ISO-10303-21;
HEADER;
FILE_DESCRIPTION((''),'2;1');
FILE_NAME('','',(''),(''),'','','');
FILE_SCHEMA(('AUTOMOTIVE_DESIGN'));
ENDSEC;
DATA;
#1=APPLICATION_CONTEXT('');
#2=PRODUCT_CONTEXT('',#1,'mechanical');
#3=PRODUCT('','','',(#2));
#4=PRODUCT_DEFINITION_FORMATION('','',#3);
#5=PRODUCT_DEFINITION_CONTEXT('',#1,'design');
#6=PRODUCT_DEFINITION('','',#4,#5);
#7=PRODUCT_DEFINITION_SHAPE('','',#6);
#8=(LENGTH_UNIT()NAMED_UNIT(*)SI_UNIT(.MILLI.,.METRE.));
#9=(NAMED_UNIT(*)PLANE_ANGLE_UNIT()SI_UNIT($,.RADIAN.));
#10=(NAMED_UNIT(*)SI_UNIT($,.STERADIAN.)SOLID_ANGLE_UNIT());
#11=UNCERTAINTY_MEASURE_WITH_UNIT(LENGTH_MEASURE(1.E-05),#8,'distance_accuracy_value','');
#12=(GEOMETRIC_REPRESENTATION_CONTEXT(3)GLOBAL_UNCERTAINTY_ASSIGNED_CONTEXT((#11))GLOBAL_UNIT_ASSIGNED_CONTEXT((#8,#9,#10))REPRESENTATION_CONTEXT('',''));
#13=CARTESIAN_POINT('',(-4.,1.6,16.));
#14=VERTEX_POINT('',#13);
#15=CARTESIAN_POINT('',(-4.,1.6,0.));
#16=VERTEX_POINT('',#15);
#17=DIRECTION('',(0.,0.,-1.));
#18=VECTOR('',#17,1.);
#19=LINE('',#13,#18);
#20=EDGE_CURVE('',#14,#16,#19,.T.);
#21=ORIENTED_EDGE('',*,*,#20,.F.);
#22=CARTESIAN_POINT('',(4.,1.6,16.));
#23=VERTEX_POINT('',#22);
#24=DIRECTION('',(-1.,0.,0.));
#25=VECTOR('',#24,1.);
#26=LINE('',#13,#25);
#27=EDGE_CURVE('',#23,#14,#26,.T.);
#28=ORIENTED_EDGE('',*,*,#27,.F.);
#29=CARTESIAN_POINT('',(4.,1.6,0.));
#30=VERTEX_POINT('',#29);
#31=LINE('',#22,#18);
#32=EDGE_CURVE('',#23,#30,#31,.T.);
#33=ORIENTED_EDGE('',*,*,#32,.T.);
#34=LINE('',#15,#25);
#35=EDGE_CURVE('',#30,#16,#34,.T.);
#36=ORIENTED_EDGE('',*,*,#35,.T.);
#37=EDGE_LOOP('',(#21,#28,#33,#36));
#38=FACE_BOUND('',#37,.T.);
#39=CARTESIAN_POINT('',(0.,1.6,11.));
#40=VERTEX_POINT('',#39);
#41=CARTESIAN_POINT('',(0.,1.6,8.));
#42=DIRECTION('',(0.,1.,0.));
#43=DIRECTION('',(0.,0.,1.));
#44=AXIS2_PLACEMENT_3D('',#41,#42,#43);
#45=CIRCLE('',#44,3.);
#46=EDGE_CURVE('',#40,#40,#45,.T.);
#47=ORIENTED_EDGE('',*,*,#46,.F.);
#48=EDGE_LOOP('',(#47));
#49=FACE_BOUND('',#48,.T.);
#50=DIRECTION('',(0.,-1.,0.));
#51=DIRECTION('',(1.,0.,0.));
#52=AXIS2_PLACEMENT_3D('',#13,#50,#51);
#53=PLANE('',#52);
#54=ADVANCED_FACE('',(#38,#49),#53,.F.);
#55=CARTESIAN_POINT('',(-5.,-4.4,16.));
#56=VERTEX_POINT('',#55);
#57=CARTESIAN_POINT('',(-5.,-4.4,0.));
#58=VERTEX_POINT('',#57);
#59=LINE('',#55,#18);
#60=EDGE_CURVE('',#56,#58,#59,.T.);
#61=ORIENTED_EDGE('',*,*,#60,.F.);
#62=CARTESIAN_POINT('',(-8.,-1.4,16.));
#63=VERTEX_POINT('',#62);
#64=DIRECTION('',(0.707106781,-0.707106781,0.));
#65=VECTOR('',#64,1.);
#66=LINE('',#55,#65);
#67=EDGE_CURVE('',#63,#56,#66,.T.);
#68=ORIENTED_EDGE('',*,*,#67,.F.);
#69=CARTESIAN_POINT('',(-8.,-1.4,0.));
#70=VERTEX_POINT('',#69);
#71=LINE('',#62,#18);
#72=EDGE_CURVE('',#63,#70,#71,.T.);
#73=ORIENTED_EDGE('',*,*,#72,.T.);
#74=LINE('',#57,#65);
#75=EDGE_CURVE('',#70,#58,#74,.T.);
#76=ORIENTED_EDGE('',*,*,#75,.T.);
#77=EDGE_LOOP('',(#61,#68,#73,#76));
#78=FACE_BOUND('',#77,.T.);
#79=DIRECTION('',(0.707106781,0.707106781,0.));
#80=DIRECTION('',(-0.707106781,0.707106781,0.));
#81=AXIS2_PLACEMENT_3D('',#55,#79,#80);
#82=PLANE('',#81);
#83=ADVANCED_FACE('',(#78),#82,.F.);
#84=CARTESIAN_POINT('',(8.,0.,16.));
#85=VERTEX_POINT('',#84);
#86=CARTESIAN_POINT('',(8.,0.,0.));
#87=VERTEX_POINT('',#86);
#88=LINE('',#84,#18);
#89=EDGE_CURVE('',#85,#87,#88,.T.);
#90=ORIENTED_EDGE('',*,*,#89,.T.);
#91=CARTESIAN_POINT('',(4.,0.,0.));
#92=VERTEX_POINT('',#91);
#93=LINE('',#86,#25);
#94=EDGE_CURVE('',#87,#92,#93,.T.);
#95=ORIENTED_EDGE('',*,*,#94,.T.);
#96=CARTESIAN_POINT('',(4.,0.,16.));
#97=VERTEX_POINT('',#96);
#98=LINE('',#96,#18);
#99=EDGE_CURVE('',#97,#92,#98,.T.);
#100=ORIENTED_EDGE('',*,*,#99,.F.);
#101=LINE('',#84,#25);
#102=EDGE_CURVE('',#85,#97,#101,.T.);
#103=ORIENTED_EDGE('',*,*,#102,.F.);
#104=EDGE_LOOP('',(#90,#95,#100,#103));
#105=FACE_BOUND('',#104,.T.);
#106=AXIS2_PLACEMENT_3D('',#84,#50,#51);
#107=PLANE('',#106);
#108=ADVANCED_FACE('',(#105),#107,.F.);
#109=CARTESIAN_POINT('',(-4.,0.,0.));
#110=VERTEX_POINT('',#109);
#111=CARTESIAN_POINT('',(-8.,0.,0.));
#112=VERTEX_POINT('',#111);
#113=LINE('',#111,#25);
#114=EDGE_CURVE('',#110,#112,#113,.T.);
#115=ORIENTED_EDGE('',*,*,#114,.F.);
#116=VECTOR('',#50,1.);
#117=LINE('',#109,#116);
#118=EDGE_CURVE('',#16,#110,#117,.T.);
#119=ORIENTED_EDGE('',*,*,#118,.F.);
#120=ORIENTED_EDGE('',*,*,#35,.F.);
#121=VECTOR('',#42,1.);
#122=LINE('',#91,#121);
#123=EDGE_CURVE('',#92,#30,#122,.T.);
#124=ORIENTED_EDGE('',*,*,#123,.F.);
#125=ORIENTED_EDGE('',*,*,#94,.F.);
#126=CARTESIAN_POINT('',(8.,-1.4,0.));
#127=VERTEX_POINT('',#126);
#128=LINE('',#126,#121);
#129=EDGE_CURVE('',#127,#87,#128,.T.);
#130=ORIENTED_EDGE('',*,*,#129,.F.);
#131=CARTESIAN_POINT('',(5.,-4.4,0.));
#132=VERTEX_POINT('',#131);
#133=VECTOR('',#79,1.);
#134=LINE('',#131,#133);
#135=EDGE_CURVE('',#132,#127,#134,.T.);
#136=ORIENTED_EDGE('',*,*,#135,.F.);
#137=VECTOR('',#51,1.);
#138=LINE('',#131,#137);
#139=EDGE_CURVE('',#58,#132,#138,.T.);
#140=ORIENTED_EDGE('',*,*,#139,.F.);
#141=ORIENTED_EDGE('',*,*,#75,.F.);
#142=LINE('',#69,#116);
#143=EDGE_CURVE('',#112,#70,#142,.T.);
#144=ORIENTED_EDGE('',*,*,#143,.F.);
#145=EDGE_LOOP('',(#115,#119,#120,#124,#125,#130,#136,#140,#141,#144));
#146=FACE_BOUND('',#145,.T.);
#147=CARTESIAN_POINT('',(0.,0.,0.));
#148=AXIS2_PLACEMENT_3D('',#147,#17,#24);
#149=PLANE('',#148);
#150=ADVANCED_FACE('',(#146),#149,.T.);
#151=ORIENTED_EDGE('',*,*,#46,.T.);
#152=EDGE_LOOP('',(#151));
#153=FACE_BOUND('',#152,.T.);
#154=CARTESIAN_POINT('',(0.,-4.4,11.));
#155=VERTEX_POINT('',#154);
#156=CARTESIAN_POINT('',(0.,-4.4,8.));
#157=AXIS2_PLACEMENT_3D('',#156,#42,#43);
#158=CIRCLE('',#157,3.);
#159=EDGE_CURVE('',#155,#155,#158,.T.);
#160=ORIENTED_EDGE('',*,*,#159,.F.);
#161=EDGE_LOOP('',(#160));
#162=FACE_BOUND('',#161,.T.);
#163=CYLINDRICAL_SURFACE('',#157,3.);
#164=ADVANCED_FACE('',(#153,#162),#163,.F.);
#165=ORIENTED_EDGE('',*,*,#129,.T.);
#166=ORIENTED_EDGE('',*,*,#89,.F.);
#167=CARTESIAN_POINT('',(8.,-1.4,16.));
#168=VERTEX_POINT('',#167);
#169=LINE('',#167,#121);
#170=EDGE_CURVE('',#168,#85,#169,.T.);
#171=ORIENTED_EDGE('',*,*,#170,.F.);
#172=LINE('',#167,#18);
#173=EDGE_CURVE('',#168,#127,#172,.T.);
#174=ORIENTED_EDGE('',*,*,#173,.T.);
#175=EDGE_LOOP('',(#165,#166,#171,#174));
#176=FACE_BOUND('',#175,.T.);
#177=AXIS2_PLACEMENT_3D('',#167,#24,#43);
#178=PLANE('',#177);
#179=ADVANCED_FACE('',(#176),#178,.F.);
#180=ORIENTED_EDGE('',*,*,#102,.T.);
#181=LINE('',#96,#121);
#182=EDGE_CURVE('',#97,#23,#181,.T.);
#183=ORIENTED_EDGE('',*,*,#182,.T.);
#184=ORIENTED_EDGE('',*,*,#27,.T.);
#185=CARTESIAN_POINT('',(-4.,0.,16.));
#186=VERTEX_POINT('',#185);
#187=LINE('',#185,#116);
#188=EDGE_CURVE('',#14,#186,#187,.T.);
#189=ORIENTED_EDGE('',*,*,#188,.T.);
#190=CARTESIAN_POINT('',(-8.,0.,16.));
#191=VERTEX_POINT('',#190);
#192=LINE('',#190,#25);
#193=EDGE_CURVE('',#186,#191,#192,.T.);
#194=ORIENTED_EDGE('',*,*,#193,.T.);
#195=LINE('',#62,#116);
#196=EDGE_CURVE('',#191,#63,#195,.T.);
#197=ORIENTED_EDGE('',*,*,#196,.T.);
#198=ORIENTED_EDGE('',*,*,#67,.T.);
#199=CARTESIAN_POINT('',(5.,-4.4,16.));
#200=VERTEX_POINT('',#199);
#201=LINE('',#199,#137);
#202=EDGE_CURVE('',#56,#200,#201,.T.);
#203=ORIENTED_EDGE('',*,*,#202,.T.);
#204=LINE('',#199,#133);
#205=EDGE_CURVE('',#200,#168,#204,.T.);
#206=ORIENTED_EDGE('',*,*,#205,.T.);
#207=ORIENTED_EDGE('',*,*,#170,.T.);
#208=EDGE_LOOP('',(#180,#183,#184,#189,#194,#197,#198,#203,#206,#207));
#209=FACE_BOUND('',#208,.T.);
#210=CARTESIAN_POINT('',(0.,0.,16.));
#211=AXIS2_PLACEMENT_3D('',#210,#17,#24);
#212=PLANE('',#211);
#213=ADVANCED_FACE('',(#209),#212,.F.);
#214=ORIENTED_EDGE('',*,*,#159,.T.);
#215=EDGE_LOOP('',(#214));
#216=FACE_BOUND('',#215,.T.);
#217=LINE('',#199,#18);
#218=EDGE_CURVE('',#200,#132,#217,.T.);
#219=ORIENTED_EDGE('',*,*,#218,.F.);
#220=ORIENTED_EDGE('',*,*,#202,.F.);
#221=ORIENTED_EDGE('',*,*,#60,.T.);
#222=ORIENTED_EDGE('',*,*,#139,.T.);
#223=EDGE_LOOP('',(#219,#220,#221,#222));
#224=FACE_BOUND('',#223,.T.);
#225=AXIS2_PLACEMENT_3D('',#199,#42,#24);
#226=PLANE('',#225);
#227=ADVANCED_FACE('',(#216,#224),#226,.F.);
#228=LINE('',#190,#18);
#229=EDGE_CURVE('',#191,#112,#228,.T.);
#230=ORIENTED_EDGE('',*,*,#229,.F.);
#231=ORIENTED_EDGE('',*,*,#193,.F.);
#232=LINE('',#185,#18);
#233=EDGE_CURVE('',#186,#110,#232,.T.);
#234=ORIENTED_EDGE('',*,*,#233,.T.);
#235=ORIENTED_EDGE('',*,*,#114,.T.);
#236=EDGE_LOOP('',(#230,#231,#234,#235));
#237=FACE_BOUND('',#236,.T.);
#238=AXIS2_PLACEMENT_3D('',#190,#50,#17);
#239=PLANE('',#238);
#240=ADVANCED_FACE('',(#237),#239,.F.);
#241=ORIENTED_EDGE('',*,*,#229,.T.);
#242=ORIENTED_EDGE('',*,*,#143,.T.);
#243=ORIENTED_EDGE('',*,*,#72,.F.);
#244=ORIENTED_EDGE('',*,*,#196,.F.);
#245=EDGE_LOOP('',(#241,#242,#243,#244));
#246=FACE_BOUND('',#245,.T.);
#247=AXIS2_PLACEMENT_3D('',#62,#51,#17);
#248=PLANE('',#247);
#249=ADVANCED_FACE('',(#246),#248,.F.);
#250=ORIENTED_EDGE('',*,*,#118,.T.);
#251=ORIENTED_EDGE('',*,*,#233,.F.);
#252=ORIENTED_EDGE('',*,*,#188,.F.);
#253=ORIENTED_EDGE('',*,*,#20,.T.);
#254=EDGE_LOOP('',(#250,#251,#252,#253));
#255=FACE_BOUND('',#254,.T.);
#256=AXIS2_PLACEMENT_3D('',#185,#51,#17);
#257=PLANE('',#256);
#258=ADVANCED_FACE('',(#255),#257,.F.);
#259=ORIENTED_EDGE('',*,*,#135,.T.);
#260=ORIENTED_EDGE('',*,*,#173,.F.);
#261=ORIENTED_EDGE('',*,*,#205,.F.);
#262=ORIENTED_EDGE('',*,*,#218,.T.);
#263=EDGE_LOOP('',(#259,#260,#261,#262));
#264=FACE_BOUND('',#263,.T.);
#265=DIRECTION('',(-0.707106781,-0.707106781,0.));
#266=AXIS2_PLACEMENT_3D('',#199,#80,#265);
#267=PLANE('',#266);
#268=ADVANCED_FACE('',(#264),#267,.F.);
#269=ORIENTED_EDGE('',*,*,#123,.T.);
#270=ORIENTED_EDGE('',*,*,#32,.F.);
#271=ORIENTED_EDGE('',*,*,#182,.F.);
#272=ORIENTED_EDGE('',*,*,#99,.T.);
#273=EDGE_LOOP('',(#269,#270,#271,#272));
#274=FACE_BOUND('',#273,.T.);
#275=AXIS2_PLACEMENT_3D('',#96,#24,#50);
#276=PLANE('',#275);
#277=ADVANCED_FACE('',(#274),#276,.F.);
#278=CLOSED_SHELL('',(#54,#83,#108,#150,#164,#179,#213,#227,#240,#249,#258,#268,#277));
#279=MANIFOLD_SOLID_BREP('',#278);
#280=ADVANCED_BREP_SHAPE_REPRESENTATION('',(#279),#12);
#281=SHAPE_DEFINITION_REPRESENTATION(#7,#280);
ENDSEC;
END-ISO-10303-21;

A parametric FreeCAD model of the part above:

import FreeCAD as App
import Part
import Sketcher

V = App.Vector


def add_polygon(sketch, points):
    """Adds a closed chain of lines whose ends are joined by coincident constraints."""
    first, n = sketch.GeometryCount, len(points)
    for a, b in zip(points, points[1:] + points[:1]):
        sketch.addGeometry(Part.LineSegment(App.Vector(*a, 0), App.Vector(*b, 0)), False)
    for i in range(n):
        sketch.addConstraint(Sketcher.Constraint("Coincident", first + i, 2, first + (i + 1) % n, 1))

doc = App.newDocument("Part")
body = doc.addObject("PartDesign::Body", "Body")

# Sketch on XY plane
sketch1 = body.newObject("Sketcher::SketchObject", "Sketch")
sketch1.AttachmentSupport = (doc.getObject("XY_Plane"), [""])
sketch1.MapMode = "FlatFace"
add_polygon(sketch1, [(-5, -4.4), (5, -4.4), (8, -1.4), (8, 0), (4, 0), (4, 1.6), (-4, 1.6), (-4, 0), (-8, 0), (-8, -1.4)])  # lines 0-9
sketch1.addConstraint([
    Sketcher.Constraint("Horizontal", 0),
    Sketcher.Constraint("Vertical", 2),
    Sketcher.Constraint("Horizontal", 3),
    Sketcher.Constraint("Vertical", 4),
    Sketcher.Constraint("Horizontal", 5),
    Sketcher.Constraint("Vertical", 6),
    Sketcher.Constraint("Horizontal", 7),
    Sketcher.Constraint("Vertical", 8),
    Sketcher.Constraint("Symmetric", 3, 2, 6, 2, -1, 1),
    Sketcher.Constraint("Symmetric", 2, 2, 7, 2, -2),
    Sketcher.Constraint("Perpendicular", 1, 9),
    Sketcher.Constraint("Horizontal", 1, 2, 8, 2),
    Sketcher.Constraint("Equal", 1, 9),
    Sketcher.Constraint("DistanceX", 0, 1, 0, 2, 10.0),
    Sketcher.Constraint("DistanceX", 3, 2, 3, 1, 4.0),
    Sketcher.Constraint("DistanceX", 5, 2, 5, 1, 8.0),
    Sketcher.Constraint("DistanceY", 2, 1, 2, 2, 1.4),
    Sketcher.Constraint("DistanceY", 4, 1, 4, 2, 1.6),
])
pad1 = body.newObject("PartDesign::Pad", "Pad")
pad1.Profile = sketch1
pad1.Length = 16

# Sketch on XZ plane
sketch2 = body.newObject("Sketcher::SketchObject", "Sketch001")
sketch2.AttachmentSupport = (doc.getObject("XZ_Plane"), [""])
sketch2.MapMode = "FlatFace"
sketch2.addGeometry(Part.Circle(V(0, 8, 0), V(0, 0, 1), 3), False)
sketch2.addConstraint([
    Sketcher.Constraint("PointOnObject", 0, 3, -2),
    Sketcher.Constraint("Diameter", 0, 6.0),
    Sketcher.Constraint("DistanceY", -1, 1, 0, 3, 8.0),
])
pocket1 = body.newObject("PartDesign::Pocket", "Pocket")
pocket1.Profile = sketch2
pocket1.Type = "ThroughAll"
pocket1.Midplane = True

doc.recompute()
